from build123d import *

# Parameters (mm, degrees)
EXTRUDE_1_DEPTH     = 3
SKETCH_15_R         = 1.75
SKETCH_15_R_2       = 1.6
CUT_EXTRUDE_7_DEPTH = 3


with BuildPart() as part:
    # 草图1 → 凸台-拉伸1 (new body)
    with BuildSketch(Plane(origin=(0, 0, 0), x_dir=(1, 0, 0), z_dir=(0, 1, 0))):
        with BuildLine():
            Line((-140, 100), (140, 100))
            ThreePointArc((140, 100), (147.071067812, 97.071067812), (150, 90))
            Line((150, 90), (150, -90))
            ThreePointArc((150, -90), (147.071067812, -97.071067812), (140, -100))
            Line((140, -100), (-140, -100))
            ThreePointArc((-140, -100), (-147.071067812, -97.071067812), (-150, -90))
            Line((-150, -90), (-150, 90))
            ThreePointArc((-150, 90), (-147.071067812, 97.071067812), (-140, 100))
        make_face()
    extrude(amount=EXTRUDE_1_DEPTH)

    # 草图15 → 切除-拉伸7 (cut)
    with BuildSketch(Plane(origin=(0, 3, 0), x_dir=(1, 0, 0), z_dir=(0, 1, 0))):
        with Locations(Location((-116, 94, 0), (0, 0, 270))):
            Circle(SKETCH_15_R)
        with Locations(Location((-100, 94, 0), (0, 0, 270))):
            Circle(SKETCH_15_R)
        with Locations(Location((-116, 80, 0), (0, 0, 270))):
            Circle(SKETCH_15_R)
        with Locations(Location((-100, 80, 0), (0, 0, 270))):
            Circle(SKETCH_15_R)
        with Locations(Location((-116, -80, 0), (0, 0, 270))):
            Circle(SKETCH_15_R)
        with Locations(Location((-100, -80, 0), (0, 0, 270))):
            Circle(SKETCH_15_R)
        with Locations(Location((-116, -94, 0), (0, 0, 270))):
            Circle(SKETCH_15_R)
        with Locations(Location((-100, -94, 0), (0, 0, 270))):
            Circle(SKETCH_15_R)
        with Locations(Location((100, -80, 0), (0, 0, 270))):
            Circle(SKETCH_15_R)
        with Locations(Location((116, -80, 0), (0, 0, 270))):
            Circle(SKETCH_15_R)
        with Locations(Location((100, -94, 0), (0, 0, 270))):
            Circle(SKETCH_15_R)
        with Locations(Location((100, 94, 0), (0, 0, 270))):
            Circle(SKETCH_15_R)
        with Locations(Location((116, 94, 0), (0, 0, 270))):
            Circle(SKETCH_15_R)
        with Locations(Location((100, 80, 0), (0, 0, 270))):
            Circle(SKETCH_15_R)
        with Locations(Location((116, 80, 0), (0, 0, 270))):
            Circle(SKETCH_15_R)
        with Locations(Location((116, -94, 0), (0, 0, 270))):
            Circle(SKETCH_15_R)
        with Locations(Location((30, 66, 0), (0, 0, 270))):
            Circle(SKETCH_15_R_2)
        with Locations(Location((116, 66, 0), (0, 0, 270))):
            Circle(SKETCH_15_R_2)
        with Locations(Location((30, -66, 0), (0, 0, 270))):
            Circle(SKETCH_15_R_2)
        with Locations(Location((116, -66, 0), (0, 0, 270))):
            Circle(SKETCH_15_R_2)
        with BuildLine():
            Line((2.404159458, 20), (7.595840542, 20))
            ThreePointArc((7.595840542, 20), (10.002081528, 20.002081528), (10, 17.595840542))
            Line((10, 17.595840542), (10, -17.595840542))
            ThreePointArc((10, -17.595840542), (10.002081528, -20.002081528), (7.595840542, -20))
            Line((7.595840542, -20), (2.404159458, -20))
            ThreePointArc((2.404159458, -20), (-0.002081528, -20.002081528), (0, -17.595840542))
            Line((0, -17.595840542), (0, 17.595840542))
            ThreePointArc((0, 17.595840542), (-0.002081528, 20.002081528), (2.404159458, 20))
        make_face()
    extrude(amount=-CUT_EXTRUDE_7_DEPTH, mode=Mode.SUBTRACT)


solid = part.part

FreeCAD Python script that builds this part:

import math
import FreeCAD as App
import Part
import Sketcher

doc = App.newDocument("Part")
body = doc.addObject("PartDesign::Body", "Body")

# Sketch on XZ plane
sketch1 = body.newObject("Sketcher::SketchObject", "Sketch")
sketch1.AttachmentSupport = (doc.getObject("XZ_Plane"), [""])
sketch1.MapMode = "FlatFace"
sketch1.addGeometry(Part.LineSegment(App.Vector(140, -100, 0), App.Vector(-140, -100, 0)), False)
sketch1.addGeometry(Part.ArcOfCircle(Part.Circle(App.Vector(-140, -90, 0), App.Vector(0, 0, 1), 10), math.radians(180), math.radians(270)), False)
sketch1.addGeometry(Part.LineSegment(App.Vector(-150, -90, 0), App.Vector(-150, 90, 0)), False)
sketch1.addGeometry(Part.ArcOfCircle(Part.Circle(App.Vector(-140, 90, 0), App.Vector(0, 0, 1), 10), math.radians(90), math.radians(180)), False)
sketch1.addGeometry(Part.LineSegment(App.Vector(-140, 100, 0), App.Vector(140, 100, 0)), False)
sketch1.addGeometry(Part.ArcOfCircle(Part.Circle(App.Vector(140, 90, 0), App.Vector(0, 0, 1), 10), math.radians(0), math.radians(90)), False)
sketch1.addGeometry(Part.LineSegment(App.Vector(150, 90, 0), App.Vector(150, -90, 0)), False)
sketch1.addGeometry(Part.ArcOfCircle(Part.Circle(App.Vector(140, -90, 0), App.Vector(0, 0, 1), 10), math.radians(-90), math.radians(0)), False)
sketch1.addConstraint(Sketcher.Constraint("Tangent", 0, 2, 1, 2))
sketch1.addConstraint(Sketcher.Constraint("Tangent", 1, 1, 2, 1))
sketch1.addConstraint(Sketcher.Constraint("Tangent", 2, 2, 3, 2))
sketch1.addConstraint(Sketcher.Constraint("Tangent", 3, 1, 4, 1))
sketch1.addConstraint(Sketcher.Constraint("Tangent", 4, 2, 5, 2))
sketch1.addConstraint(Sketcher.Constraint("Tangent", 5, 1, 6, 1))
sketch1.addConstraint(Sketcher.Constraint("Tangent", 6, 2, 7, 2))
sketch1.addConstraint(Sketcher.Constraint("Tangent", 7, 1, 0, 1))
sketch1.addConstraint(Sketcher.Constraint("Horizontal", 0))
sketch1.addConstraint(Sketcher.Constraint("Vertical", 2))
sketch1.addConstraint(Sketcher.Constraint("Horizontal", 4))
sketch1.addConstraint(Sketcher.Constraint("Vertical", 6))
sketch1.addConstraint(Sketcher.Constraint("Equal", 1, 3))
sketch1.addConstraint(Sketcher.Constraint("Equal", 3, 5))
sketch1.addConstraint(Sketcher.Constraint("Equal", 5, 7))
sketch1.addConstraint(Sketcher.Constraint("Symmetric", 1, 3, 5, 3, -1, 1))
sketch1.addConstraint(Sketcher.Constraint("Radius", 1, 10.0))
sketch1.addConstraint(Sketcher.Constraint("DistanceX", 0, 2, 0, 1, 280.0))
sketch1.addConstraint(Sketcher.Constraint("DistanceY", 2, 1, 2, 2, 180.0))
pad1 = body.newObject("PartDesign::Pad", "Pad")
pad1.Profile = sketch1
pad1.Length = 3
pad1.Reversed = True

# Sketch on XZ plane
sketch2 = body.newObject("Sketcher::SketchObject", "Sketch001")
sketch2.AttachmentSupport = (doc.getObject("XZ_Plane"), [""])
sketch2.MapMode = "FlatFace"
sketch2.AttachmentOffset = App.Placement(App.Vector(0, 0, -3), App.Rotation())
sketch2.addGeometry(Part.Circle(App.Vector(-116, -94, 0), App.Vector(0, 0, 1), 1.75), False)
sketch2.addGeometry(Part.Circle(App.Vector(-100, -94, 0), App.Vector(0, 0, 1), 1.75), False)
sketch2.addGeometry(Part.Circle(App.Vector(-116, -80, 0), App.Vector(0, 0, 1), 1.75), False)
sketch2.addGeometry(Part.Circle(App.Vector(-100, -80, 0), App.Vector(0, 0, 1), 1.75), False)
sketch2.addGeometry(Part.Circle(App.Vector(-116, 80, 0), App.Vector(0, 0, 1), 1.75), False)
sketch2.addGeometry(Part.Circle(App.Vector(-100, 80, 0), App.Vector(0, 0, 1), 1.75), False)
sketch2.addGeometry(Part.Circle(App.Vector(-116, 94, 0), App.Vector(0, 0, 1), 1.75), False)
sketch2.addGeometry(Part.Circle(App.Vector(-100, 94, 0), App.Vector(0, 0, 1), 1.75), False)
sketch2.addGeometry(Part.Circle(App.Vector(100, 80, 0), App.Vector(0, 0, 1), 1.75), False)
sketch2.addGeometry(Part.Circle(App.Vector(116, 80, 0), App.Vector(0, 0, 1), 1.75), False)
sketch2.addGeometry(Part.Circle(App.Vector(100, 94, 0), App.Vector(0, 0, 1), 1.75), False)
sketch2.addGeometry(Part.Circle(App.Vector(100, -94, 0), App.Vector(0, 0, 1), 1.75), False)
sketch2.addGeometry(Part.Circle(App.Vector(116, -94, 0), App.Vector(0, 0, 1), 1.75), False)
sketch2.addGeometry(Part.Circle(App.Vector(100, -80, 0), App.Vector(0, 0, 1), 1.75), False)
sketch2.addGeometry(Part.Circle(App.Vector(116, -80, 0), App.Vector(0, 0, 1), 1.75), False)
sketch2.addGeometry(Part.Circle(App.Vector(116, 94, 0), App.Vector(0, 0, 1), 1.75), False)
sketch2.addGeometry(Part.Circle(App.Vector(30, -66, 0), App.Vector(0, 0, 1), 1.6), False)
sketch2.addGeometry(Part.Circle(App.Vector(116, -66, 0), App.Vector(0, 0, 1), 1.6), False)
sketch2.addGeometry(Part.Circle(App.Vector(30, 66, 0), App.Vector(0, 0, 1), 1.6), False)
sketch2.addGeometry(Part.Circle(App.Vector(116, 66, 0), App.Vector(0, 0, 1), 1.6), False)
sketch2.addGeometry(Part.LineSegment(App.Vector(7.595841, -20, 0), App.Vector(2.404159, -20, 0)), False)
sketch2.addGeometry(Part.ArcOfCircle(Part.Circle(App.Vector(1.2, -18.8, 0), App.Vector(0, 0, 1), 1.7), math.radians(134.900872), math.radians(315.099128)), False)
sketch2.addGeometry(Part.LineSegment(App.Vector(0, -17.595841, 0), App.Vector(0, 17.595841, 0)), False)
sketch2.addGeometry(Part.ArcOfCircle(Part.Circle(App.Vector(1.2, 18.8, 0), App.Vector(0, 0, 1), 1.7), math.radians(44.900872), math.radians(225.099128)), False)
sketch2.addGeometry(Part.LineSegment(App.Vector(2.404159, 20, 0), App.Vector(7.595841, 20, 0)), False)
sketch2.addGeometry(Part.ArcOfCircle(Part.Circle(App.Vector(8.8, 18.8, 0), App.Vector(0, 0, 1), 1.7), math.radians(-45.099128), math.radians(135.099128)), False)
sketch2.addGeometry(Part.LineSegment(App.Vector(10, 17.595841, 0), App.Vector(10, -17.595841, 0)), False)
sketch2.addGeometry(Part.ArcOfCircle(Part.Circle(App.Vector(8.8, -18.8, 0), App.Vector(0, 0, 1), 1.7), math.radians(-135.099128), math.radians(45.099128)), False)
sketch2.addConstraint(Sketcher.Constraint("Coincident", 20, 2, 21, 2))
sketch2.addConstraint(Sketcher.Constraint("Coincident", 21, 1, 22, 1))
sketch2.addConstraint(Sketcher.Constraint("Coincident", 22, 2, 23, 2))
sketch2.addConstraint(Sketcher.Constraint("Coincident", 23, 1, 24, 1))
sketch2.addConstraint(Sketcher.Constraint("Coincident", 24, 2, 25, 2))
sketch2.addConstraint(Sketcher.Constraint("Coincident", 25, 1, 26, 1))
sketch2.addConstraint(Sketcher.Constraint("Coincident", 26, 2, 27, 2))
sketch2.addConstraint(Sketcher.Constraint("Coincident", 27, 1, 20, 1))
sketch2.addConstraint(Sketcher.Constraint("Horizontal", 20))
sketch2.addConstraint(Sketcher.Constraint("Vertical", 22))
sketch2.addConstraint(Sketcher.Constraint("Horizontal", 24))
sketch2.addConstraint(Sketcher.Constraint("Vertical", 26))
sketch2.addConstraint(Sketcher.Constraint("Equal", 0, 1))
sketch2.addConstraint(Sketcher.Constraint("Equal", 1, 2))
sketch2.addConstraint(Sketcher.Constraint("Equal", 2, 3))
sketch2.addConstraint(Sketcher.Constraint("Equal", 3, 4))
sketch2.addConstraint(Sketcher.Constraint("Equal", 4, 5))
sketch2.addConstraint(Sketcher.Constraint("Equal", 5, 6))
sketch2.addConstraint(Sketcher.Constraint("Equal", 6, 7))
sketch2.addConstraint(Sketcher.Constraint("Equal", 7, 8))
sketch2.addConstraint(Sketcher.Constraint("Equal", 8, 9))
sketch2.addConstraint(Sketcher.Constraint("Equal", 9, 10))
sketch2.addConstraint(Sketcher.Constraint("Equal", 10, 11))
sketch2.addConstraint(Sketcher.Constraint("Equal", 11, 12))
sketch2.addConstraint(Sketcher.Constraint("Equal", 12, 13))
sketch2.addConstraint(Sketcher.Constraint("Equal", 13, 14))
sketch2.addConstraint(Sketcher.Constraint("Equal", 14, 15))
sketch2.addConstraint(Sketcher.Constraint("Equal", 16, 17))
sketch2.addConstraint(Sketcher.Constraint("Equal", 17, 18))
sketch2.addConstraint(Sketcher.Constraint("Equal", 18, 19))
sketch2.addConstraint(Sketcher.Constraint("Equal", 21, 23))
sketch2.addConstraint(Sketcher.Constraint("Equal", 23, 25))
sketch2.addConstraint(Sketcher.Constraint("Equal", 25, 27))
sketch2.addConstraint(Sketcher.Constraint("Symmetric", 3, 3, 8, 3, -1, 1))
sketch2.addConstraint(Sketcher.Constraint("Symmetric", 2, 3, 9, 3, -1, 1))
sketch2.addConstraint(Sketcher.Constraint("Symmetric", 1, 3, 10, 3, -1, 1))
sketch2.addConstraint(Sketcher.Constraint("Symmetric", 7, 3, 11, 3, -1, 1))
sketch2.addConstraint(Sketcher.Constraint("Symmetric", 6, 3, 12, 3, -1, 1))
sketch2.addConstraint(Sketcher.Constraint("Symmetric", 5, 3, 13, 3, -1, 1))
sketch2.addConstraint(Sketcher.Constraint("Symmetric", 4, 3, 14, 3, -1, 1))
sketch2.addConstraint(Sketcher.Constraint("Symmetric", 0, 3, 15, 3, -1, 1))
sketch2.addConstraint(Sketcher.Constraint("Symmetric", 21, 1, 22, 2, -1, 1))
sketch2.addConstraint(Sketcher.Constraint("Symmetric", 5, 3, 8, 3, -2))
sketch2.addConstraint(Sketcher.Constraint("Symmetric", 4, 3, 9, 3, -2))
sketch2.addConstraint(Sketcher.Constraint("Symmetric", 7, 3, 10, 3, -2))
sketch2.addConstraint(Sketcher.Constraint("Symmetric", 0, 3, 12, 3, -2))
sketch2.addConstraint(Sketcher.Constraint("Symmetric", 16, 3, 18, 3, -1))
sketch2.addConstraint(Sketcher.Constraint("Symmetric", 17, 3, 19, 3, -1))
sketch2.addConstraint(Sketcher.Constraint("Symmetric", 25, 3, 27, 3, -1))
sketch2.addConstraint(Sketcher.Constraint("Symmetric", 20, 2, 23, 1, -1))
sketch2.addConstraint(Sketcher.Constraint("Horizontal", 0, 3, 1, 3))
sketch2.addConstraint(Sketcher.Constraint("Horizontal", 2, 3, 3, 3))
sketch2.addConstraint(Sketcher.Constraint("Horizontal", 16, 3, 17, 3))
sketch2.addConstraint(Sketcher.Constraint("Horizontal", 23, 3, 25, 3))
sketch2.addConstraint(Sketcher.Constraint("Horizontal", 22, 2, 25, 1))
sketch2.addConstraint(Sketcher.Constraint("Vertical", 0, 3, 2, 3))
sketch2.addConstraint(Sketcher.Constraint("Vertical", 1, 3, 3, 3))
sketch2.addConstraint(Sketcher.Constraint("Vertical", 15, 3, 17, 3))
sketch2.addConstraint(Sketcher.Constraint("Diameter", 0, 3.5))
sketch2.addConstraint(Sketcher.Constraint("Diameter", 16, 3.2))
sketch2.addConstraint(Sketcher.Constraint("Radius", 21, 1.7))
sketch2.addConstraint(Sketcher.Constraint("DistanceX", 0, 3, -1, 1, 116.0))
sketch2.addConstraint(Sketcher.Constraint("DistanceY", 0, 3, -1, 1, 94.0))
sketch2.addConstraint(Sketcher.Constraint("DistanceX", 1, 3, -1, 1, 100.0))
sketch2.addConstraint(Sketcher.Constraint("DistanceY", 2, 3, -1, 1, 80.0))
sketch2.addConstraint(Sketcher.Constraint("DistanceX", -1, 1, 16, 3, 30.0))
sketch2.addConstraint(Sketcher.Constraint("DistanceY", 16, 3, -1, 1, 66.0))
sketch2.addConstraint(Sketcher.Constraint("DistanceY", 20, 2, -1, 1, 20.0))
sketch2.addConstraint(Sketcher.Constraint("DistanceX", -1, 1, 25, 1, 10.0))
sketch2.addConstraint(Sketcher.Constraint("DistanceX", -1, 1, 21, 3, 1.2))
sketch2.addConstraint(Sketcher.Constraint("DistanceY", 21, 3, -1, 1, 18.8))
pocket1 = body.newObject("PartDesign::Pocket", "Pocket")
pocket1.Profile = sketch2
pocket1.Length = 3
pocket1.Reversed = True

doc.recompute()
